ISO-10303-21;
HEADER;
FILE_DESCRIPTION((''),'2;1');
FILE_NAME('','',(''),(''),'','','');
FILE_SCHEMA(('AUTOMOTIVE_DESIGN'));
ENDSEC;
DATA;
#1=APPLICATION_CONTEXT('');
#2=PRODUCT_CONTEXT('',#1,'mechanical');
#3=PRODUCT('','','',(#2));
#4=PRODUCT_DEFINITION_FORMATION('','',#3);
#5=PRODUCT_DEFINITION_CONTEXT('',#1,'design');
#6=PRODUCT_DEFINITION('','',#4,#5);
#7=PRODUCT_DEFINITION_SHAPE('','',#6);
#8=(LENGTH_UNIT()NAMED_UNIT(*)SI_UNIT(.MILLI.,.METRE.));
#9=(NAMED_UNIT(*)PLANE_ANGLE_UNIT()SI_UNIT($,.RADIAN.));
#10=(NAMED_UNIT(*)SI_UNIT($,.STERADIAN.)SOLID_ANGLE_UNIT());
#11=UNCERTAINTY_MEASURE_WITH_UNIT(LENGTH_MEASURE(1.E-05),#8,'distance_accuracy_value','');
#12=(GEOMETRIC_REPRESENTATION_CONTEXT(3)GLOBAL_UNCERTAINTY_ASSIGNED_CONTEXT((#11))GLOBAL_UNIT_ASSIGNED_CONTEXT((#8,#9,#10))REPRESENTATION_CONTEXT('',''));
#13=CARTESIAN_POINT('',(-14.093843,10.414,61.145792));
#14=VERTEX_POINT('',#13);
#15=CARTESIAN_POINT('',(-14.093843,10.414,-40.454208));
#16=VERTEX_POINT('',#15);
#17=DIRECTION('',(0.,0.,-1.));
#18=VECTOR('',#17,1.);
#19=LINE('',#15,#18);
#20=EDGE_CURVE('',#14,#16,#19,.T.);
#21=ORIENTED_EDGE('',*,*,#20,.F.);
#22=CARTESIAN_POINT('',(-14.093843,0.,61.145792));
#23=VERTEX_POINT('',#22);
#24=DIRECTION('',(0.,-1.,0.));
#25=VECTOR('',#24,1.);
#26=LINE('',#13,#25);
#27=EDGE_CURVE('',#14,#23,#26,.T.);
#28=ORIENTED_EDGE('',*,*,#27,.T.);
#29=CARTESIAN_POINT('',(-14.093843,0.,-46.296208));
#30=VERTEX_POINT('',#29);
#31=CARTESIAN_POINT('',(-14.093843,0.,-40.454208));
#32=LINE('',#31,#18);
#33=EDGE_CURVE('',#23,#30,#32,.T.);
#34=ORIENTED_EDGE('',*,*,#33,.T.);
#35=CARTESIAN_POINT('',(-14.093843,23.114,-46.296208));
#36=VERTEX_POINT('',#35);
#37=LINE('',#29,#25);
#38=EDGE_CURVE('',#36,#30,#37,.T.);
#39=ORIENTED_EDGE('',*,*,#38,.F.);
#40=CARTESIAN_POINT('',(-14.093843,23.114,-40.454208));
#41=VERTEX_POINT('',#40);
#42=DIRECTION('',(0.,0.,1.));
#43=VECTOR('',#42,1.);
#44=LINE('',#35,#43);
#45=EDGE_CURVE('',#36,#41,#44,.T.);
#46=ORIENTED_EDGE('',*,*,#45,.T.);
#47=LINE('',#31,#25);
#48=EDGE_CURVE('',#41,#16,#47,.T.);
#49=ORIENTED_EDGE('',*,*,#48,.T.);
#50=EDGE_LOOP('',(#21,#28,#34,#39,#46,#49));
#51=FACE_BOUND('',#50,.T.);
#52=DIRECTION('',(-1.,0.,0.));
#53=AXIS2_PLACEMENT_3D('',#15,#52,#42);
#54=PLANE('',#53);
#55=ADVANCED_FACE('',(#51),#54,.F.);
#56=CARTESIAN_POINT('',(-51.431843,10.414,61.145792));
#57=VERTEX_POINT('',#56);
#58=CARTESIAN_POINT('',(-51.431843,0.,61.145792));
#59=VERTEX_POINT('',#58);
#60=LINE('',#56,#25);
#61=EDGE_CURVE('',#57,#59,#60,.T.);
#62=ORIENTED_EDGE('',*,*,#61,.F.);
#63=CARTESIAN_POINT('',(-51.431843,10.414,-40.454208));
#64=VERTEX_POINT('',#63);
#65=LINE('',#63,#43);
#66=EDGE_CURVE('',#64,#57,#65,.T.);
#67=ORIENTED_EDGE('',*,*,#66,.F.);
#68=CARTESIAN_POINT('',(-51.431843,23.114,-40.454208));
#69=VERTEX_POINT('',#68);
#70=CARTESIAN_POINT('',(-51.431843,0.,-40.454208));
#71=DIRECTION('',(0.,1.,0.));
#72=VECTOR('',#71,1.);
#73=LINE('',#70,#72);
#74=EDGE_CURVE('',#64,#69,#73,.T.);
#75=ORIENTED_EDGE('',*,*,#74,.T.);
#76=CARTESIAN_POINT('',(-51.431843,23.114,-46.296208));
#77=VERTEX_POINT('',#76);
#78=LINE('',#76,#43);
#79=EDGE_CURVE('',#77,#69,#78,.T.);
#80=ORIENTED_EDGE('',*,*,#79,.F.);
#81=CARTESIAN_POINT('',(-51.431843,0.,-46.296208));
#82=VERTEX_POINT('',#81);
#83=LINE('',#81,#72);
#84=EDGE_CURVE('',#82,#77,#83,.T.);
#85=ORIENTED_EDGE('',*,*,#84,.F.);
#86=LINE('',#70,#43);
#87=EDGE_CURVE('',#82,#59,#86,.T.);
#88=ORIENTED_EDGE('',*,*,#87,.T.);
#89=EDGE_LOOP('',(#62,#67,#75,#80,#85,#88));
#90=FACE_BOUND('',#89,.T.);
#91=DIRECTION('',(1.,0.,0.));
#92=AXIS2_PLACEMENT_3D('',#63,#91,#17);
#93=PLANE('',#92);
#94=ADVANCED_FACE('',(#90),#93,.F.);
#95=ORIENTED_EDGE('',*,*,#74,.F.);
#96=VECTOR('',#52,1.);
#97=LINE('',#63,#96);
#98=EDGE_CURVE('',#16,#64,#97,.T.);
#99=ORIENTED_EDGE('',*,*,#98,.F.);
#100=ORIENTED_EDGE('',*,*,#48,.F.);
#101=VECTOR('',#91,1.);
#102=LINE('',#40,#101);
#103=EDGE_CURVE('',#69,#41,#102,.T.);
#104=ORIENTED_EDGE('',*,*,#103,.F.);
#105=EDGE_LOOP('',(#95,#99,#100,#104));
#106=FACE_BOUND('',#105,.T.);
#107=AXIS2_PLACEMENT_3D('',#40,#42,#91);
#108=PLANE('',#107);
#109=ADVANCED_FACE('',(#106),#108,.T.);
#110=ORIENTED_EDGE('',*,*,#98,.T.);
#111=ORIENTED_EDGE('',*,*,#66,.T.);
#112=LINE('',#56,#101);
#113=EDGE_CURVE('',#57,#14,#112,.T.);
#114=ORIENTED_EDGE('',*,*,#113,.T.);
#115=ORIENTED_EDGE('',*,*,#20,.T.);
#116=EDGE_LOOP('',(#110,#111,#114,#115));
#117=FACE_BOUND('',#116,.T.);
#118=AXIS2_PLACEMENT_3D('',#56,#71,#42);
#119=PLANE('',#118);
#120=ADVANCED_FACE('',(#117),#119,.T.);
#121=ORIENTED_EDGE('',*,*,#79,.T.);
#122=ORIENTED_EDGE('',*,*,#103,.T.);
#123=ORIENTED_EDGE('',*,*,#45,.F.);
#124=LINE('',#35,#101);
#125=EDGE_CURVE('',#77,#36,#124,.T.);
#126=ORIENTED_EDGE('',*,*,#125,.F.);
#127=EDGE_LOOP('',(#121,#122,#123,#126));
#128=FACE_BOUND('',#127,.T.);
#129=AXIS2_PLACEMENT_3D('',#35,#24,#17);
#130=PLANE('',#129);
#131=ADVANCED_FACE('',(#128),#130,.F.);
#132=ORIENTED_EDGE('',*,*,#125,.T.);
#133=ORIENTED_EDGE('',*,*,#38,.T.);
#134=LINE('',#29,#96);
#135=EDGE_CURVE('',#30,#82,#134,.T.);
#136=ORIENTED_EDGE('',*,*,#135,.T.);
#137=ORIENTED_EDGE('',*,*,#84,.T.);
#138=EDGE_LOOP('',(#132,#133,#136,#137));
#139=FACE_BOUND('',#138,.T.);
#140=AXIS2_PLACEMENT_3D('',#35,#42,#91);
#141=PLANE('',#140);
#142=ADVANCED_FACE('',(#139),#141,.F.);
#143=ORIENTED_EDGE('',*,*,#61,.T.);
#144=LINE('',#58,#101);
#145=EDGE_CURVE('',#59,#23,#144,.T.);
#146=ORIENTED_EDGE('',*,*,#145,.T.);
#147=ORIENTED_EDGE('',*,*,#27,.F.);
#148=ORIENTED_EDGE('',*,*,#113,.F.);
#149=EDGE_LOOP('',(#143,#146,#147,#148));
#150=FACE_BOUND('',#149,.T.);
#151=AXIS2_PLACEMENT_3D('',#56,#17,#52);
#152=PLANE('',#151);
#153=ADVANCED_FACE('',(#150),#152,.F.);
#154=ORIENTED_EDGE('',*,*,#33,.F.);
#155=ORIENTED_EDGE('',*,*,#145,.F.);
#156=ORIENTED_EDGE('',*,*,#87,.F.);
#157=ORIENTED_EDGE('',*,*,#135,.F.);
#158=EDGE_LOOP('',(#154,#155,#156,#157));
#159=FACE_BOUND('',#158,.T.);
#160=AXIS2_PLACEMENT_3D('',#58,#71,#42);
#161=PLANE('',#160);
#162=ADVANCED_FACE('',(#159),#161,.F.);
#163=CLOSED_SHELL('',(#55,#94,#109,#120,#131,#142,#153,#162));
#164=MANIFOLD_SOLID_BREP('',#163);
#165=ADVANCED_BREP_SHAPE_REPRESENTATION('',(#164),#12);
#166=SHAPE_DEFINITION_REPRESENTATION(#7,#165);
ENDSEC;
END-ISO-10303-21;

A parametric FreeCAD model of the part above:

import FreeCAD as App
import Part
import Sketcher
Q = App.Units.Quantity


def add_polygon(sketch, points):
    """Adds a closed chain of lines whose ends are joined by coincident constraints."""
    first, n = sketch.GeometryCount, len(points)
    for a, b in zip(points, points[1:] + points[:1]):
        sketch.addGeometry(Part.LineSegment(App.Vector(*a, 0), App.Vector(*b, 0)), False)
    for i in range(n):
        sketch.addConstraint(Sketcher.Constraint("Coincident", first + i, 2, first + (i + 1) % n, 1))

doc = App.newDocument("Part")
body = doc.addObject("PartDesign::Body", "Body")

sketch1 = doc.addObject("Sketcher::SketchObject", "Sketch")
body.addObject(sketch1)
sketch1.AttachmentSupport = (doc.XZ_Plane, [""])
sketch1.MapMode = "FlatFace"
add_polygon(sketch1, [(-51, -40), (-51, 61), (-14, 61), (-14, -40)])
sketch1.addConstraint(Sketcher.Constraint("Vertical", 0))
sketch1.addConstraint(Sketcher.Constraint("Horizontal", 1))
sketch1.addConstraint(Sketcher.Constraint("Vertical", 2))
sketch1.addConstraint(Sketcher.Constraint("Horizontal", 3))
sketch1.addConstraint(Sketcher.Constraint("DistanceY", 0, 1, 0, 2, Q("4 in")))
sketch1.addConstraint(Sketcher.Constraint("DistanceX", 1, 1, 1, 2, Q("1.47 in")))
sketch1.addConstraint(Sketcher.Constraint("DistanceY", -1, 1, 0, 2, Q("61.145792 mm")))
sketch1.addConstraint(Sketcher.Constraint("DistanceX", 0, 2, -1, 1, Q("51.431843 mm")))
pad1 = doc.addObject("PartDesign::Pad", "Pad")
body.addObject(pad1)
pad1.Profile = sketch1
pad1.Length = Q("0.41 in")
pad1.Reversed = True

sketch2 = doc.addObject("Sketcher::SketchObject", "Sketch001")
body.addObject(sketch2)
sketch2.AttachmentSupport = (doc.XY_Plane, [""])
sketch2.MapMode = "FlatFace"
sketch2.AttachmentOffset = App.Placement(App.Vector(0, 0, -40.454208), App.Rotation())
add_polygon(sketch2, [(-14, 23), (-14, 0), (-51, 0), (-51, 23)])
sketch2.addConstraint(Sketcher.Constraint("Vertical", 0))
sketch2.addConstraint(Sketcher.Constraint("Horizontal", 1))
sketch2.addConstraint(Sketcher.Constraint("Vertical", 2))
sketch2.addConstraint(Sketcher.Constraint("Horizontal", 3))
sketch2.addConstraint(Sketcher.Constraint("PointOnObject", 0, 2, -1))
sketch2.addConstraint(Sketcher.Constraint("DistanceX", 1, 2, 1, 1, Q("1.47 in")))
sketch2.addConstraint(Sketcher.Constraint("DistanceY", 0, 2, 0, 1, Q("0.91 in")))
sketch2.addConstraint(Sketcher.Constraint("DistanceX", 0, 2, -1, 1, Q("14.093843 mm")))
pad2 = doc.addObject("PartDesign::Pad", "Pad001")
body.addObject(pad2)
pad2.Profile = sketch2
pad2.Length = Q("0.23 in")
pad2.Reversed = True

doc.recompute()
